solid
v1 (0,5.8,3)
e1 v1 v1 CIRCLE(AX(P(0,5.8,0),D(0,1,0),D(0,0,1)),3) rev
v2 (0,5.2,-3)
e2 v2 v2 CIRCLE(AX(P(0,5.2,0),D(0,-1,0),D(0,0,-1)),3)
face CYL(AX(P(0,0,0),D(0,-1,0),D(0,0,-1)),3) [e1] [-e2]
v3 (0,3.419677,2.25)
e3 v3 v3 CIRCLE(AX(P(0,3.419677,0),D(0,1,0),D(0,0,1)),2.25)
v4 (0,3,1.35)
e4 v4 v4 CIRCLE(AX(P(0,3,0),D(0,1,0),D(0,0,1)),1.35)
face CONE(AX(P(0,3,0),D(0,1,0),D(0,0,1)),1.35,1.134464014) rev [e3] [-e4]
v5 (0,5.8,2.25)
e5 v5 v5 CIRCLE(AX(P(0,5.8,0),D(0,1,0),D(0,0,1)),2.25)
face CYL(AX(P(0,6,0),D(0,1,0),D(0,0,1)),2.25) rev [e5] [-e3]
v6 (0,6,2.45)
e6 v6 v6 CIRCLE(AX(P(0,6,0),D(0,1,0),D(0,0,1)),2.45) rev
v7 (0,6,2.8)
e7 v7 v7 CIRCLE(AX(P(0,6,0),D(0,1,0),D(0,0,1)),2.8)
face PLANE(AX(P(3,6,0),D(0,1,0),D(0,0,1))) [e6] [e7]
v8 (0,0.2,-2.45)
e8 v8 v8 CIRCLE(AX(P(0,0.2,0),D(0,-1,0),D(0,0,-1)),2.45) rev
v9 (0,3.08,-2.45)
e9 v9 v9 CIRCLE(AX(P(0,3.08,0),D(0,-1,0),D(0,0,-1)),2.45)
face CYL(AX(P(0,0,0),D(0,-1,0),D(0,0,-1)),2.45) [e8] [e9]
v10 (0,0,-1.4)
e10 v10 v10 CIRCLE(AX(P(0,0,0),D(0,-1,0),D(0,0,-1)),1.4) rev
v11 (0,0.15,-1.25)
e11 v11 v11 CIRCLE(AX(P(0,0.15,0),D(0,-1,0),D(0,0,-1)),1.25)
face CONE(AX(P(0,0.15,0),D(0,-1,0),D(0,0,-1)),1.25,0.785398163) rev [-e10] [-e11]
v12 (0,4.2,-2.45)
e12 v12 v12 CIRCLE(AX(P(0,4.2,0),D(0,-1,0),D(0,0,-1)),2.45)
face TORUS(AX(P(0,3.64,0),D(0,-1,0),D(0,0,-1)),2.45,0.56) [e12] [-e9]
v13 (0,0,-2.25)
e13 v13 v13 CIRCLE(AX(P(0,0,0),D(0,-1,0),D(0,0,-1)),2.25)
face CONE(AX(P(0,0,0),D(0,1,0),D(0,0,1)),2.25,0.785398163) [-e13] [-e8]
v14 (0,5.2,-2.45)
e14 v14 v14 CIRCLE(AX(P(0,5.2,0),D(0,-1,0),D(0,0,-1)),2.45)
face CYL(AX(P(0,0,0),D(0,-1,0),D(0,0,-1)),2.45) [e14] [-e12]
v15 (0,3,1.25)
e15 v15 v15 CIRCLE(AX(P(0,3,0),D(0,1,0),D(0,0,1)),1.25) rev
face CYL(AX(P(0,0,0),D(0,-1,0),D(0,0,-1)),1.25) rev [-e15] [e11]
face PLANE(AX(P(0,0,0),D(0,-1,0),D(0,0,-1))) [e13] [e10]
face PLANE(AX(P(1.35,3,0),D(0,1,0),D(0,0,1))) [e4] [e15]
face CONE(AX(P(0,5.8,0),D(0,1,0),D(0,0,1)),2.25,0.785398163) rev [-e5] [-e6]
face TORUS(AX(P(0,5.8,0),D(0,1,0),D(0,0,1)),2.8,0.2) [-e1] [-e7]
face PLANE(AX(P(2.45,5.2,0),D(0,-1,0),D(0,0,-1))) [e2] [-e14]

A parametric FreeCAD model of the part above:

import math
import FreeCAD as App
import Part
import Sketcher
from FreeCAD import Vector
Q = App.Units.Quantity


def edges_at(feature, points):
    """Names of the edges that pass closest to the given points."""
    edges = feature.Shape.Edges
    near = lambda p: min(range(len(edges)), key=lambda i: edges[i].distToShape(Part.Vertex(*p))[0])
    return sorted({f"Edge{near(p) + 1}" for p in points})


def add_polygon(sketch, points):
    """Adds a closed chain of lines whose ends are joined by coincident constraints."""
    first, n = sketch.GeometryCount, len(points)
    for a, b in zip(points, points[1:] + points[:1]):
        sketch.addGeometry(Part.LineSegment(App.Vector(*a, 0), App.Vector(*b, 0)), False)
    for i in range(n):
        sketch.addConstraint(Sketcher.Constraint("Coincident", first + i, 2, first + (i + 1) % n, 1))

doc = App.newDocument("Part")
body = doc.addObject("PartDesign::Body", "Body")

# Sketch on XY plane
sketch1 = body.newObject("Sketcher::SketchObject", "Sketch")
sketch1.AttachmentSupport = (doc.getObject("XY_Plane"), [""])
sketch1.MapMode = "FlatFace"
add_polygon(sketch1, [(0, 0), (2.5, 0), (2.5, 5.2), (3, 5.2), (3, 6), (0, 6)])  # lines 0-5
sketch1.addConstraint([
    Sketcher.Constraint("Horizontal", 0),
    Sketcher.Constraint("Vertical", 1),
    Sketcher.Constraint("Horizontal", 2),
    Sketcher.Constraint("Vertical", 3),
    Sketcher.Constraint("Horizontal", 4),
    Sketcher.Constraint("Vertical", 5),
    Sketcher.Constraint("Coincident", 5, 2, -1, 1),
    Sketcher.Constraint("DistanceX", 4, 2, 4, 1, 3.0),
    Sketcher.Constraint("DistanceY", 5, 2, 5, 1, 6.0),
    Sketcher.Constraint("DistanceY", 1, 1, 1, 2, 5.2),
    Sketcher.Constraint("DistanceX", 0, 1, 0, 2, 2.45),
])
revolution = body.newObject("PartDesign::Revolution", "Revolution")
revolution.Profile = sketch1
revolution.ReferenceAxis = (sketch1, ["V_Axis"])
revolution.Angle = 360
doc.recompute()

fillet = body.newObject("PartDesign::Fillet", "Fillet")
fillet.Base = (revolution, edges_at(revolution, [(0, 6, 3)]))
fillet.Radius = 0.2

# Sketch on XZ plane
sketch2 = body.newObject("Sketcher::SketchObject", "Sketch001")
sketch2.AttachmentSupport = (doc.getObject("XZ_Plane"), [""])
sketch2.MapMode = "FlatFace"
sketch2.addGeometry(Part.Circle(Vector(0, 0, 0), Vector(0, 0, 1), 1.2), False)
sketch2.addConstraint([
    Sketcher.Constraint("Coincident", 0, 3, -1, 1),
    Sketcher.Constraint("Diameter", 0, 2.5),
])
doc.recompute()
hole = body.newObject("PartDesign::Hole", "Hole")
hole.Profile = sketch2
hole.ThreadType = "None"
hole.Diameter = 2.5
hole.DepthType = "Dimension"
hole.Depth = 4
hole.DrillPoint = "Angled"
hole.DrillPointAngle = 118
doc.recompute()

chamfer = body.newObject("PartDesign::Chamfer", "Chamfer")
chamfer.Base = (hole, edges_at(hole, [(-1.25, 0, 0)]))
chamfer.Size = 0.15

# Sketch on XY plane
sketch3 = body.newObject("Sketcher::SketchObject", "Sketch002")
sketch3.AttachmentSupport = (doc.getObject("XY_Plane"), [""])
sketch3.MapMode = "FlatFace"
add_polygon(sketch3, [(2.2, 3.4), (2.2, 6), (0, 6), (0, 3), (1.4, 3)])  # lines 0-4
sketch3.addConstraint([
    Sketcher.Constraint("Vertical", 0),
    Sketcher.Constraint("Horizontal", 1),
    Sketcher.Constraint("Vertical", 2),
    Sketcher.Constraint("Horizontal", 3),
    Sketcher.Constraint("PointOnObject", 1, 2, -2),
    Sketcher.Constraint("DistanceY", 2, 2, 2, 1, 3.0),
    Sketcher.Constraint("Angle", 4, Q("25 deg")),
    Sketcher.Constraint("DistanceY", -1, 1, 0, 2, 6.0),
    Sketcher.Constraint("DistanceX", 1, 2, 1, 1, 2.25),
    Sketcher.Constraint("DistanceX", 3, 1, 3, 2, 1.35),
])
groove = body.newObject("PartDesign::Groove", "Groove")
groove.Profile = sketch3
groove.ReferenceAxis = (sketch3, ["V_Axis"])
groove.Angle = 360

# Sketch on XY plane
sketch4 = body.newObject("Sketcher::SketchObject", "Sketch003")
sketch4.AttachmentSupport = (doc.getObject("XY_Plane"), [""])
sketch4.MapMode = "FlatFace"
sketch4.addGeometry([
    Part.LineSegment(Vector(-2.5, 3.1, 0), Vector(-2.5, 4.2, 0)),
    Part.ArcOfCircle(Part.Circle(Vector(-2.5, 3.6, 0), Vector(0, 0, 1), 0.6), math.radians(90), math.radians(270)),
], False)
sketch4.addConstraint([
    Sketcher.Constraint("Coincident", 0, 1, 1, 2),
    Sketcher.Constraint("Coincident", 1, 1, 0, 2),
    Sketcher.Constraint("Vertical", 0),
    Sketcher.Constraint("Vertical", 1, 3, 0, 1),
    Sketcher.Constraint("Radius", 1, 0.56),
    Sketcher.Constraint("DistanceY", -1, 1, 1, 1, 4.2),
    Sketcher.Constraint("DistanceX", 1, 3, -1, 1, 2.45),
])
revolution2 = body.newObject("PartDesign::Revolution", "Revolution001")
revolution2.Profile = sketch4
revolution2.ReferenceAxis = (sketch4, ["V_Axis"])
revolution2.Angle = 360
doc.recompute()

chamfer2 = body.newObject("PartDesign::Chamfer", "Chamfer001")
chamfer2.Base = (revolution2, edges_at(revolution2, [(0, 0, 2.45)]))
chamfer2.Size = 0.2
doc.recompute()

chamfer3 = body.newObject("PartDesign::Chamfer", "Chamfer002")
chamfer3.Base = (chamfer2, edges_at(chamfer2, [(0, 6, -2.25)]))
chamfer3.Size = 0.2

doc.recompute()
